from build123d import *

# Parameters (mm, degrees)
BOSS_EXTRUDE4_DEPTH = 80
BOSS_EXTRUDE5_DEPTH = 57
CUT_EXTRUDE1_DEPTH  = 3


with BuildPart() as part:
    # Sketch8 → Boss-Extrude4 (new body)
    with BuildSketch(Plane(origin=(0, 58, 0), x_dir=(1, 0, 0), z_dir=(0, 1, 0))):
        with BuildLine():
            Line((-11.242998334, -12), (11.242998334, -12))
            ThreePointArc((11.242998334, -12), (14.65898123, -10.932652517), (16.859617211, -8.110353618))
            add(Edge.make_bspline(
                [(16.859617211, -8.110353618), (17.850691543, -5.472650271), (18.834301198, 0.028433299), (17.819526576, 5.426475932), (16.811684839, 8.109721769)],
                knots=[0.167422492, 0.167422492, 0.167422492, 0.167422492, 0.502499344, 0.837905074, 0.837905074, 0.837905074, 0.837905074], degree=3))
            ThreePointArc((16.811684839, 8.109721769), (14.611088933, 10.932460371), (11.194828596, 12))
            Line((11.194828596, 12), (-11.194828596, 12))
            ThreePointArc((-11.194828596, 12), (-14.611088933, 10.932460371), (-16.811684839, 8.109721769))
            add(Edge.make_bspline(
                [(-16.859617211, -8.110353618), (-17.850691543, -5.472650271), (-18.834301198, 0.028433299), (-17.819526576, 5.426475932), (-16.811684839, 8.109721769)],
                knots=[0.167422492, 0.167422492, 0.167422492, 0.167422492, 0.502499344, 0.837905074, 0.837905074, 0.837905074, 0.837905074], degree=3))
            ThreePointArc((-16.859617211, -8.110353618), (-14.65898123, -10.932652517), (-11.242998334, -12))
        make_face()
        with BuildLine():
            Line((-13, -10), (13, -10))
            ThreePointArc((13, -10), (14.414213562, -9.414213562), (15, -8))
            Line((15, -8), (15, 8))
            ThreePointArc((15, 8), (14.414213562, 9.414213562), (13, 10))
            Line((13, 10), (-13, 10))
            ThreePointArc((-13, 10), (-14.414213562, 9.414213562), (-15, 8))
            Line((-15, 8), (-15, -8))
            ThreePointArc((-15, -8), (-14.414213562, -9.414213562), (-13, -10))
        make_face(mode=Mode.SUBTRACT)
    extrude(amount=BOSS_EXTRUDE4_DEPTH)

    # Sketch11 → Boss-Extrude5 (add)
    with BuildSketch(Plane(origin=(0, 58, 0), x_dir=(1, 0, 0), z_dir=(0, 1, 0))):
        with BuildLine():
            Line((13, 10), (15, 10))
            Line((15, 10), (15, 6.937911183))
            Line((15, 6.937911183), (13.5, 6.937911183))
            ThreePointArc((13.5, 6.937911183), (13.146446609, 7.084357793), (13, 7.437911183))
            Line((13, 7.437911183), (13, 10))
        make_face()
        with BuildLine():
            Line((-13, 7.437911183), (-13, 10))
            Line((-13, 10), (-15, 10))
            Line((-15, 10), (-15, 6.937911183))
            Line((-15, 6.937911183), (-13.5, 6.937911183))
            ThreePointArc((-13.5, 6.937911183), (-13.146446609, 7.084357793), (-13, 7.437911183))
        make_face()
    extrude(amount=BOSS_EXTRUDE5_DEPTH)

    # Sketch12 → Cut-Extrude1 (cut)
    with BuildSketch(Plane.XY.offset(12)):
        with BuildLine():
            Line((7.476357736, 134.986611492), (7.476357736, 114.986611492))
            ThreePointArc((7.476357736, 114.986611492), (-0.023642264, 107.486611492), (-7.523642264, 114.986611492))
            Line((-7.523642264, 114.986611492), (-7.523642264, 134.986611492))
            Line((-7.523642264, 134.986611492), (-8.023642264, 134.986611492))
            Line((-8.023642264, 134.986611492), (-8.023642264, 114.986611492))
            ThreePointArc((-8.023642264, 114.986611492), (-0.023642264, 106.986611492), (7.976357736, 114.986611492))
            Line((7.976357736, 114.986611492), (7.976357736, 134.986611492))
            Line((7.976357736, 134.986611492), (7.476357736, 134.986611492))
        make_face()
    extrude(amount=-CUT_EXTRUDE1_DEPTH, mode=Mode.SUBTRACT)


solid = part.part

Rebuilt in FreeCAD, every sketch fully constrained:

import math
import FreeCAD as App
import Part
import Sketcher
Q = App.Units.Quantity

doc = App.newDocument("Part")
body = doc.addObject("PartDesign::Body", "Body")

# Sketch on XZ plane
sketch1 = doc.addObject("Sketcher::SketchObject", "Sketch")
body.addObject(sketch1)
sketch1.AttachmentSupport = (doc.XZ_Plane, [""])
sketch1.MapMode = "FlatFace"
sketch1.AttachmentOffset = App.Placement(App.Vector(0, 0, -58), App.Rotation())
sketch1.addGeometry([
    Part.LineSegment(App.Vector(-11.242998, 12, 0), App.Vector(11.242998, 12, 0)),  # 0
    Part.ArcOfCircle(Part.Circle(App.Vector(11.242998, 6, 0), App.Vector(0, 0, 1), 6), math.radians(20.592897), math.radians(90)),  # 1
    Part.BSplineCurve([App.Vector(16.859617, 8.110354, 0), App.Vector(17.850692, 5.47265, 0), App.Vector(18.834301, -0.028433, 0), App.Vector(17.819527, -5.426476, 0), App.Vector(16.811685, -8.109722, 0)], [4, 1, 4], [0.167422492, 0.502499344, 0.837905074], False, 3, [1, 1, 1, 1, 1], False),  # 2
    Part.ArcOfCircle(Part.Circle(App.Vector(11.194829, -6, 0), App.Vector(0, 0, 1), 6), math.radians(-90), math.radians(-20.586452)),  # 3
    Part.LineSegment(App.Vector(11.194829, -12, 0), App.Vector(-11.194829, -12, 0)),  # 4
    Part.ArcOfCircle(Part.Circle(App.Vector(-11.194829, -6, 0), App.Vector(0, 0, 1), 6), math.radians(-159.413548), math.radians(-90)),  # 5
    Part.BSplineCurve([App.Vector(-16.859617, 8.110354, 0), App.Vector(-17.850692, 5.47265, 0), App.Vector(-18.834301, -0.028433, 0), App.Vector(-17.819527, -5.426476, 0), App.Vector(-16.811685, -8.109722, 0)], [4, 1, 4], [0.167422492, 0.502499344, 0.837905074], False, 3, [1, 1, 1, 1, 1], False),  # 6
    Part.ArcOfCircle(Part.Circle(App.Vector(-11.242998, 6, 0), App.Vector(0, 0, 1), 6), math.radians(90), math.radians(159.407103)),  # 7
    Part.LineSegment(App.Vector(13, 10, 0), App.Vector(-13, 10, 0)),  # 8
    Part.ArcOfCircle(Part.Circle(App.Vector(-13, 8, 0), App.Vector(0, 0, 1), 2), math.radians(90), math.radians(180)),  # 9
    Part.LineSegment(App.Vector(-15, 8, 0), App.Vector(-15, -8, 0)),  # 10
    Part.ArcOfCircle(Part.Circle(App.Vector(-13, -8, 0), App.Vector(0, 0, 1), 2), math.radians(-180), math.radians(-90)),  # 11
    Part.LineSegment(App.Vector(-13, -10, 0), App.Vector(13, -10, 0)),  # 12
    Part.ArcOfCircle(Part.Circle(App.Vector(13, -8, 0), App.Vector(0, 0, 1), 2), math.radians(-90), math.radians(0)),  # 13
    Part.LineSegment(App.Vector(15, -8, 0), App.Vector(15, 8, 0)),  # 14
    Part.ArcOfCircle(Part.Circle(App.Vector(13, 8, 0), App.Vector(0, 0, 1), 2), math.radians(0), math.radians(90)),  # 15
], False)
sketch1.addConstraint([
    Sketcher.Constraint("Block", 2),
    Sketcher.Constraint("Block", 6),
    Sketcher.Constraint("Tangent", 0, 2, 1, 2),
    Sketcher.Constraint("Coincident", 1, 1, 2, 1),
    Sketcher.Constraint("Coincident", 2, 2, 3, 2),
    Sketcher.Constraint("Tangent", 3, 1, 4, 1),
    Sketcher.Constraint("Tangent", 4, 2, 5, 2),
    Sketcher.Constraint("Coincident", 5, 1, 6, 2),
    Sketcher.Constraint("Coincident", 6, 1, 7, 2),
    Sketcher.Constraint("Tangent", 7, 1, 0, 1),
    Sketcher.Constraint("Tangent", 8, 2, 9, 1),
    Sketcher.Constraint("Tangent", 9, 2, 10, 1),
    Sketcher.Constraint("Tangent", 10, 2, 11, 1),
    Sketcher.Constraint("Tangent", 11, 2, 12, 1),
    Sketcher.Constraint("Tangent", 12, 2, 13, 1),
    Sketcher.Constraint("Tangent", 13, 2, 14, 1),
    Sketcher.Constraint("Tangent", 14, 2, 15, 1),
    Sketcher.Constraint("Tangent", 15, 2, 8, 1),
    Sketcher.Constraint("Horizontal", 0),
    Sketcher.Constraint("Horizontal", 4),
    Sketcher.Constraint("Horizontal", 8),
    Sketcher.Constraint("Vertical", 10),
    Sketcher.Constraint("Horizontal", 12),
    Sketcher.Constraint("Vertical", 14),
    Sketcher.Constraint("Equal", 1, 3),
    Sketcher.Constraint("Equal", 3, 5),
    Sketcher.Constraint("Equal", 5, 7),
    Sketcher.Constraint("Equal", 9, 11),
    Sketcher.Constraint("Equal", 11, 13),
    Sketcher.Constraint("Equal", 13, 15),
    Sketcher.Constraint("Symmetric", 9, 3, 13, 3, -1, 1),
    Sketcher.Constraint("Radius", 1, Q("6 mm")),
    Sketcher.Constraint("Radius", 9, Q("2 mm")),
    Sketcher.Constraint("DistanceX", 8, 2, 8, 1, Q("26 mm")),
    Sketcher.Constraint("DistanceY", 10, 2, 10, 1, Q("16 mm")),
    Sketcher.Constraint("DistanceY", -1, 1, 1, 3, Q("6 mm")),
    Sketcher.Constraint("DistanceY", 3, 3, -1, 1, Q("6 mm")),
])
pad1 = doc.addObject("PartDesign::Pad", "Pad")
body.addObject(pad1)
pad1.Profile = sketch1
pad1.Length = 80
pad1.Reversed = True

# Sketch on XZ plane
sketch2 = doc.addObject("Sketcher::SketchObject", "Sketch001")
body.addObject(sketch2)
sketch2.AttachmentSupport = (doc.XZ_Plane, [""])
sketch2.MapMode = "FlatFace"
sketch2.AttachmentOffset = App.Placement(App.Vector(0, 0, -58), App.Rotation())
sketch2.addGeometry([
    Part.LineSegment(App.Vector(15, -10, 0), App.Vector(13, -10, 0)),  # 0
    Part.LineSegment(App.Vector(13, -10, 0), App.Vector(13, -7.4, 0)),  # 1
    Part.ArcOfCircle(Part.Circle(App.Vector(13.5, -7.4, 0), App.Vector(0, 0, 1), 0.5), math.radians(90), math.radians(180)),  # 2
    Part.LineSegment(App.Vector(13.5, -6.9, 0), App.Vector(15, -6.9, 0)),  # 3
    Part.LineSegment(App.Vector(15, -6.9, 0), App.Vector(15, -10, 0)),  # 4
    Part.LineSegment(App.Vector(-13, -7.4, 0), App.Vector(-13, -10, 0)),  # 5
    Part.LineSegment(App.Vector(-13, -10, 0), App.Vector(-15, -10, 0)),  # 6
    Part.LineSegment(App.Vector(-15, -10, 0), App.Vector(-15, -6.9, 0)),  # 7
    Part.LineSegment(App.Vector(-15, -6.9, 0), App.Vector(-13.5, -6.9, 0)),  # 8
    Part.ArcOfCircle(Part.Circle(App.Vector(-13.5, -7.4, 0), App.Vector(0, 0, 1), 0.5), math.radians(0), math.radians(90)),  # 9
], False)
sketch2.addConstraint([
    Sketcher.Constraint("Coincident", 0, 2, 1, 1),
    Sketcher.Constraint("Tangent", 1, 2, 2, 2),
    Sketcher.Constraint("Tangent", 2, 1, 3, 1),
    Sketcher.Constraint("Coincident", 3, 2, 4, 1),
    Sketcher.Constraint("Coincident", 4, 2, 0, 1),
    Sketcher.Constraint("Coincident", 5, 2, 6, 1),
    Sketcher.Constraint("Coincident", 6, 2, 7, 1),
    Sketcher.Constraint("Coincident", 7, 2, 8, 1),
    Sketcher.Constraint("Tangent", 8, 2, 9, 2),
    Sketcher.Constraint("Tangent", 9, 1, 5, 1),
    Sketcher.Constraint("Horizontal", 0),
    Sketcher.Constraint("Vertical", 1),
    Sketcher.Constraint("Horizontal", 3),
    Sketcher.Constraint("Vertical", 4),
    Sketcher.Constraint("Vertical", 5),
    Sketcher.Constraint("Horizontal", 6),
    Sketcher.Constraint("Vertical", 7),
    Sketcher.Constraint("Horizontal", 8),
    Sketcher.Constraint("Equal", 2, 9),
    Sketcher.Constraint("Symmetric", 2, 3, 9, 3, -2),
    Sketcher.Constraint("Symmetric", 4, 2, 6, 2, -2),
    Sketcher.Constraint("Radius", 2, Q("0.5 mm")),
    Sketcher.Constraint("DistanceX", 0, 2, 0, 1, Q("2 mm")),
    Sketcher.Constraint("DistanceX", -1, 1, 0, 2, Q("13 mm")),
    Sketcher.Constraint("DistanceY", 0, 2, -1, 1, Q("10 mm")),
    Sketcher.Constraint("DistanceY", 1, 1, 1, 2, Q("2.562089 mm")),
])
pad2 = doc.addObject("PartDesign::Pad", "Pad001")
body.addObject(pad2)
pad2.Profile = sketch2
pad2.Length = 57
pad2.Reversed = True

# Sketch on XY plane
sketch3 = doc.addObject("Sketcher::SketchObject", "Sketch002")
body.addObject(sketch3)
sketch3.AttachmentSupport = (doc.XY_Plane, [""])
sketch3.MapMode = "FlatFace"
sketch3.AttachmentOffset = App.Placement(App.Vector(0, 0, 12), App.Rotation())
sketch3.addGeometry([
    Part.LineSegment(App.Vector(7.48, 134.99, 0), App.Vector(7.48, 114.99, 0)),  # 0
    Part.ArcOfCircle(Part.Circle(App.Vector(-0.02, 114.99, 0), App.Vector(0, 0, 1), 7.5), math.radians(180), math.radians(360)),  # 1
    Part.LineSegment(App.Vector(-7.52, 114.99, 0), App.Vector(-7.52, 134.99, 0)),  # 2
    Part.LineSegment(App.Vector(-7.52, 134.99, 0), App.Vector(-8.02, 134.99, 0)),  # 3
    Part.LineSegment(App.Vector(-8.02, 134.99, 0), App.Vector(-8.02, 114.99, 0)),  # 4
    Part.ArcOfCircle(Part.Circle(App.Vector(-0.02, 114.99, 0), App.Vector(0, 0, 1), 8), math.radians(180), math.radians(360)),  # 5
    Part.LineSegment(App.Vector(7.98, 114.99, 0), App.Vector(7.98, 134.99, 0)),  # 6
    Part.LineSegment(App.Vector(7.98, 134.99, 0), App.Vector(7.48, 134.99, 0)),  # 7
], False)
sketch3.addConstraint([
    Sketcher.Constraint("Tangent", 0, 2, 1, 2),
    Sketcher.Constraint("Tangent", 1, 1, 2, 1),
    Sketcher.Constraint("Coincident", 2, 2, 3, 1),
    Sketcher.Constraint("Coincident", 3, 2, 4, 1),
    Sketcher.Constraint("Tangent", 4, 2, 5, 1),
    Sketcher.Constraint("Tangent", 5, 2, 6, 1),
    Sketcher.Constraint("Coincident", 6, 2, 7, 1),
    Sketcher.Constraint("Coincident", 7, 2, 0, 1),
    Sketcher.Constraint("Vertical", 0),
    Sketcher.Constraint("Vertical", 2),
    Sketcher.Constraint("Horizontal", 3),
    Sketcher.Constraint("Vertical", 4),
    Sketcher.Constraint("Vertical", 6),
    Sketcher.Constraint("Horizontal", 7),
    Sketcher.Constraint("Coincident", 5, 3, 1, 3),
    Sketcher.Constraint("Horizontal", 3, 2, 6, 2),
    Sketcher.Constraint("Radius", 5, Q("8 mm")),
    Sketcher.Constraint("Radius", 1, Q("7.5 mm")),
    Sketcher.Constraint("DistanceY", 0, 2, 0, 1, Q("20 mm")),
    Sketcher.Constraint("DistanceY", -1, 1, 1, 3, Q("114.986611 mm")),
    Sketcher.Constraint("DistanceX", 1, 3, -1, 1, Q("0.023642 mm")),
])
pocket1 = doc.addObject("PartDesign::Pocket", "Pocket")
body.addObject(pocket1)
pocket1.Profile = sketch3
pocket1.Length = 3

doc.recompute()
